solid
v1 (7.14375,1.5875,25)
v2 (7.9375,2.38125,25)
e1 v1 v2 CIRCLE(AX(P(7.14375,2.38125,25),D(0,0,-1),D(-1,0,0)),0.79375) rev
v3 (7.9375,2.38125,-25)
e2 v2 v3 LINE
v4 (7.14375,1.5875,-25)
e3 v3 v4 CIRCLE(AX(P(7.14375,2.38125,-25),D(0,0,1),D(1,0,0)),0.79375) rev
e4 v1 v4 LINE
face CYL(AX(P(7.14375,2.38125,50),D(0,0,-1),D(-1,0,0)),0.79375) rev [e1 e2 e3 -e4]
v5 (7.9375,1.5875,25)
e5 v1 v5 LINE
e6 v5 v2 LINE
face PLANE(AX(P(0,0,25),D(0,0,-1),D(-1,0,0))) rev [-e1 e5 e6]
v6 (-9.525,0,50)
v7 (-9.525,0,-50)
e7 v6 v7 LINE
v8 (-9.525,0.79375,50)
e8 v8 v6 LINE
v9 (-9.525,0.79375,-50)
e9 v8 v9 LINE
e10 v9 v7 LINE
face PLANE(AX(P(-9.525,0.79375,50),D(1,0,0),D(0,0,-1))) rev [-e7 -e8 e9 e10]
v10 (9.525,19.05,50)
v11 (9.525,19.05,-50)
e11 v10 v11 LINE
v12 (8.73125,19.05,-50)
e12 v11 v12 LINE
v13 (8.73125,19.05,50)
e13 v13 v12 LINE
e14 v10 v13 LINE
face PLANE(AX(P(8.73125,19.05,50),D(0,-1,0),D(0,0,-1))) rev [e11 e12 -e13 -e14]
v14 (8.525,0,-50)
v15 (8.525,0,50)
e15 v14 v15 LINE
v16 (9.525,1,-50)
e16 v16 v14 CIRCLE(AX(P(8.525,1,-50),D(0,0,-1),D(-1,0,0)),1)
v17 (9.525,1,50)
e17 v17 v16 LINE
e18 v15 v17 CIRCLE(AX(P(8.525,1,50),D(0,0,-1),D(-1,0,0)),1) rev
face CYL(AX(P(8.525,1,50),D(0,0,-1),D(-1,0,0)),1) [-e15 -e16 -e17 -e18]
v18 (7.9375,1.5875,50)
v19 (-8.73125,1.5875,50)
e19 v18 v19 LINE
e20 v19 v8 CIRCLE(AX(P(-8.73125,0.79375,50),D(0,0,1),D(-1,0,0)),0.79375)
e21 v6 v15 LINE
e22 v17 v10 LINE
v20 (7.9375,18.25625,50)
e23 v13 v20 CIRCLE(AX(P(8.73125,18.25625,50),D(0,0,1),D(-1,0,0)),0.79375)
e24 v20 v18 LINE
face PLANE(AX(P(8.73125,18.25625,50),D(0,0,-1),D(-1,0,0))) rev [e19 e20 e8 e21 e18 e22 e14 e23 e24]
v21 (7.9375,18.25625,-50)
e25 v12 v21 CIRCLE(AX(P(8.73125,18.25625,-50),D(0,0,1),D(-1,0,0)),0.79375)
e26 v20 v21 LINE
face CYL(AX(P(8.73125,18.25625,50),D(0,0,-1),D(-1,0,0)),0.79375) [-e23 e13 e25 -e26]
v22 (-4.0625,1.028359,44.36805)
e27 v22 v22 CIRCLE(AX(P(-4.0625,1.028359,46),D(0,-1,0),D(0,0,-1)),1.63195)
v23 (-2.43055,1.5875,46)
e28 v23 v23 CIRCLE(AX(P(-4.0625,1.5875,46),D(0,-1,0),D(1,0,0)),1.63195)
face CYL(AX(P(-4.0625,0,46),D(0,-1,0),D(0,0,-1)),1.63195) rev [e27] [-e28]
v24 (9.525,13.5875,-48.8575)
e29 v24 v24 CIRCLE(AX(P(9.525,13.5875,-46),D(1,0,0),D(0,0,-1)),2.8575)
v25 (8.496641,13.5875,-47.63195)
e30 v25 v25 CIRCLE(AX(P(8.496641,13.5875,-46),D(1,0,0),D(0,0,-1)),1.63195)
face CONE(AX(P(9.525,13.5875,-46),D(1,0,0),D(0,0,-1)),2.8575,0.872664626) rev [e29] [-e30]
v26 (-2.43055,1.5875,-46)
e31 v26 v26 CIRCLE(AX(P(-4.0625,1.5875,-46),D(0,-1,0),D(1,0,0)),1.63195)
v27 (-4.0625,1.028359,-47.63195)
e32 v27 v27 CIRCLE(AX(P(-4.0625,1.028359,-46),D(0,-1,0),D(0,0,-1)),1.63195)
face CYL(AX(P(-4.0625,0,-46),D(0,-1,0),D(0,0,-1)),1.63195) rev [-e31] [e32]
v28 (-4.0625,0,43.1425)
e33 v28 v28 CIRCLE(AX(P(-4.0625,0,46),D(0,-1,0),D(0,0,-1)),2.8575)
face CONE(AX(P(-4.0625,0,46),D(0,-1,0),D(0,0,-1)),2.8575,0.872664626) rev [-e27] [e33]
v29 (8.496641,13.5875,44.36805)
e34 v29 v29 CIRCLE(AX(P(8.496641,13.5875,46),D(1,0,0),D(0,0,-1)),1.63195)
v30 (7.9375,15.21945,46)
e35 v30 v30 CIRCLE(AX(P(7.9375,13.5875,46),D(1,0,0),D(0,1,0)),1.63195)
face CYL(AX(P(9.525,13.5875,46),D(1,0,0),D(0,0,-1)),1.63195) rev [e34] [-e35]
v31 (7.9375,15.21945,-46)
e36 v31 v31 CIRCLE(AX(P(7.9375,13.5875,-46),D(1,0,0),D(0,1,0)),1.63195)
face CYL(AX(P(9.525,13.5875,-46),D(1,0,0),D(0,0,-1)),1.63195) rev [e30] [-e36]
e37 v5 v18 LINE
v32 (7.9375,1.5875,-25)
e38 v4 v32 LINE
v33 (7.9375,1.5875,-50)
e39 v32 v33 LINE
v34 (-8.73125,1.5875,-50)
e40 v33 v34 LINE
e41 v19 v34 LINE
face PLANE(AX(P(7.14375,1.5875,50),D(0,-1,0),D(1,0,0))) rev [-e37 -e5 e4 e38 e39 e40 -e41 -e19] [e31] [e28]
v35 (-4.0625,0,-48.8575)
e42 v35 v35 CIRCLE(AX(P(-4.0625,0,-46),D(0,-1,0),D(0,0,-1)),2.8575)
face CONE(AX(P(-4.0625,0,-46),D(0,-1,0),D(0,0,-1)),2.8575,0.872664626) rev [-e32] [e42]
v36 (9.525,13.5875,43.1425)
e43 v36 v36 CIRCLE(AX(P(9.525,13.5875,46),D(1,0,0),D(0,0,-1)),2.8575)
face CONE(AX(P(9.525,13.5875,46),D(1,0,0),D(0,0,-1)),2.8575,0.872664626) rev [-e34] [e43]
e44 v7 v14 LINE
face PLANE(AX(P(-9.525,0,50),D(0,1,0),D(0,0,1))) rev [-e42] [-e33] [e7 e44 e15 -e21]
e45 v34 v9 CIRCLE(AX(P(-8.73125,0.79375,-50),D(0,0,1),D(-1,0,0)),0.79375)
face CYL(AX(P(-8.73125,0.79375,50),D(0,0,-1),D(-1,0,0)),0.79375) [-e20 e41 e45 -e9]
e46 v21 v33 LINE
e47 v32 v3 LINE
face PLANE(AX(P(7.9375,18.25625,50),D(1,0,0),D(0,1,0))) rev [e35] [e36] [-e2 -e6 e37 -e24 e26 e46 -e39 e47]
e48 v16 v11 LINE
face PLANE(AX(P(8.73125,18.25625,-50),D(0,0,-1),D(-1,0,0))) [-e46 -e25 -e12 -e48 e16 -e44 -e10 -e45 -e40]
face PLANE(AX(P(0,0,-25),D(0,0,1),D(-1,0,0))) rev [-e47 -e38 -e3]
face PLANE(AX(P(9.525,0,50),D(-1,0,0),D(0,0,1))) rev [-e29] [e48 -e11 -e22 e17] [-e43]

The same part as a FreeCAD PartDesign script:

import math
import FreeCAD as App
import Part
import Sketcher

V = App.Vector
Q = App.Units.Quantity


def edges_at(feature, points):
    """Names of the edges that pass closest to the given points."""
    edges = feature.Shape.Edges
    near = lambda p: min(range(len(edges)), key=lambda i: edges[i].distToShape(Part.Vertex(*p))[0])
    return sorted({f"Edge{near(p) + 1}" for p in points})


def add_polygon(sketch, points):
    """Adds a closed chain of lines whose ends are joined by coincident constraints."""
    first, n = sketch.GeometryCount, len(points)
    for a, b in zip(points, points[1:] + points[:1]):
        sketch.addGeometry(Part.LineSegment(App.Vector(*a, 0), App.Vector(*b, 0)), False)
    for i in range(n):
        sketch.addConstraint(Sketcher.Constraint("Coincident", first + i, 2, first + (i + 1) % n, 1))

doc = App.newDocument("Part")
params = doc.addObject("Spreadsheet::Sheet", "Params")
for row, (alias, value) in enumerate([
    ("sketch1_width", "19.05 mm"),
    ("pad1_length", "100 mm"),
    ("hole_diameter", "3.2639 mm"),
    ("hole_csink_diameter", "5.715 mm"),
    ("hole2_diameter", "3.2639 mm"),
    ("hole2_csink_diameter", "5.715 mm"),
    ("fillet_radius", "1 mm"),
    ("sketch4_width", "5 mm"),
    ("pocket1_length", "25 mm"),
], start=1):
    params.set(f"A{row}", alias)
    params.set(f"B{row}", "=" + value)
    params.setAlias(f"B{row}", alias)

body = doc.addObject("PartDesign::Body", "Body")

# Sketch on XY plane
sketch1 = body.newObject("Sketcher::SketchObject", "Sketch")
sketch1.AttachmentSupport = (doc.getObject("XY_Plane"), [""])
sketch1.MapMode = "FlatFace"
sketch1.addGeometry([
    Part.LineSegment(V(-9.525, 0, 0), V(9.525, 0, 0)),  # 0
    Part.LineSegment(V(9.525, 0, 0), V(9.525, 19.05, 0)),  # 1
    Part.LineSegment(V(9.525, 19.05, 0), V(8.73125, 19.05, 0)),  # 2
    Part.ArcOfCircle(Part.Circle(V(8.73125, 18.25625, 0), V(0, 0, 1), 0.79375), math.radians(90), math.radians(180)),  # 3
    Part.LineSegment(V(7.9375, 18.25625, 0), V(7.9375, 2.38125, 0)),  # 4
    Part.ArcOfCircle(Part.Circle(V(7.14375, 2.38125, 0), V(0, 0, 1), 0.79375), math.radians(-90), math.radians(0)),  # 5
    Part.LineSegment(V(7.14375, 1.5875, 0), V(-8.73125, 1.5875, 0)),  # 6
    Part.ArcOfCircle(Part.Circle(V(-8.73125, 0.79375, 0), V(0, 0, 1), 0.79375), math.radians(90), math.radians(180)),  # 7
    Part.LineSegment(V(-9.525, 0.79375, 0), V(-9.525, 0, 0)),  # 8
], False)
sketch1.addConstraint([
    Sketcher.Constraint("Coincident", 0, 2, 1, 1),
    Sketcher.Constraint("Coincident", 1, 2, 2, 1),
    Sketcher.Constraint("Tangent", 2, 2, 3, 1),
    Sketcher.Constraint("Tangent", 3, 2, 4, 1),
    Sketcher.Constraint("Tangent", 4, 2, 5, 2),
    Sketcher.Constraint("Tangent", 5, 1, 6, 1),
    Sketcher.Constraint("Tangent", 6, 2, 7, 1),
    Sketcher.Constraint("Tangent", 7, 2, 8, 1),
    Sketcher.Constraint("Coincident", 8, 2, 0, 1),
    Sketcher.Constraint("Horizontal", 0),
    Sketcher.Constraint("Vertical", 1),
    Sketcher.Constraint("Horizontal", 2),
    Sketcher.Constraint("Vertical", 4),
    Sketcher.Constraint("Horizontal", 6),
    Sketcher.Constraint("Vertical", 8),
    Sketcher.Constraint("Equal", 3, 5),
    Sketcher.Constraint("Equal", 5, 7),
    Sketcher.Constraint("Symmetric", 0, 2, 8, 2, -1, 1),
    Sketcher.Constraint("Equal", 0, 1),
    Sketcher.Constraint("Equal", 6, 4),
    Sketcher.Constraint("DistanceX", 0, 1, 0, 2, Q("19.05 mm")),
    Sketcher.Constraint("DistanceX", 6, 2, 6, 1, Q("15.875 mm")),
    Sketcher.Constraint("Radius", 3, Q("0.79375 mm")),
])
sketch1.setExpression("Constraints[20]", "Params.sketch1_width")
pad1 = body.newObject("PartDesign::Pad", "Pad")
pad1.Profile = sketch1
pad1.setExpression("Length", "Params.pad1_length")
pad1.Midplane = True

# Sketch on XZ plane
sketch2 = body.newObject("Sketcher::SketchObject", "Sketch001")
sketch2.AttachmentSupport = (doc.getObject("XZ_Plane"), [""])
sketch2.MapMode = "FlatFace"
sketch2.addGeometry([
    Part.Circle(V(-4.0625, 46, 0), V(0, 0, 1), 1.63195),
    Part.Circle(V(-4.0625, -46, 0), V(0, 0, 1), 1.63195),
], False)
sketch2.addConstraint([
    Sketcher.Constraint("Equal", 0, 1),
    Sketcher.Constraint("Symmetric", 0, 3, 1, 3, -1),
    Sketcher.Constraint("DistanceY", -1, 1, 0, 3, Q("46 mm")),
    Sketcher.Constraint("Diameter", 0, Q("3.2639 mm")),
    Sketcher.Constraint("DistanceX", 0, 3, -1, 1, Q("4.0625 mm")),
])
doc.recompute()
hole = body.newObject("PartDesign::Hole", "Hole")
hole.Profile = sketch2
hole.ThreadType = "None"
hole.setExpression("Diameter", "Params.hole_diameter")
hole.DepthType = "ThroughAll"
hole.HoleCutType = "Countersink"
hole.setExpression("HoleCutDiameter", "Params.hole_csink_diameter")
hole.HoleCutCountersinkAngle = 100

# Sketch on YZ plane
sketch3 = body.newObject("Sketcher::SketchObject", "Sketch002")
sketch3.AttachmentSupport = (doc.getObject("YZ_Plane"), [""])
sketch3.MapMode = "FlatFace"
sketch3.AttachmentOffset = App.Placement(V(0, 0, 9.525), App.Rotation())
sketch3.addGeometry([
    Part.Circle(V(13.5875, 46, 0), V(0, 0, 1), 1.63195),
    Part.Circle(V(13.5875, -46, 0), V(0, 0, 1), 1.63195),
], False)
sketch3.addConstraint([
    Sketcher.Constraint("Equal", 0, 1),
    Sketcher.Constraint("Symmetric", 0, 3, 1, 3, -1),
    Sketcher.Constraint("DistanceY", -1, 1, 0, 3, Q("46 mm")),
    Sketcher.Constraint("Diameter", 0, Q("3.2639 mm")),
    Sketcher.Constraint("DistanceX", -1, 1, 0, 3, Q("13.5875 mm")),
])
doc.recompute()
hole2 = body.newObject("PartDesign::Hole", "Hole001")
hole2.Profile = sketch3
hole2.ThreadType = "None"
hole2.setExpression("Diameter", "Params.hole2_diameter")
hole2.DepthType = "ThroughAll"
hole2.HoleCutType = "Countersink"
hole2.setExpression("HoleCutDiameter", "Params.hole2_csink_diameter")
hole2.HoleCutCountersinkAngle = 100
doc.recompute()

fillet = body.newObject("PartDesign::Fillet", "Fillet")
fillet.Base = (hole2, edges_at(hole2, [(9.525, 0, 0)]))
fillet.setExpression("Radius", "Params.fillet_radius")

# Sketch on XY plane
sketch4 = body.newObject("Sketcher::SketchObject", "Sketch003")
sketch4.AttachmentSupport = (doc.getObject("XY_Plane"), [""])
sketch4.MapMode = "FlatFace"
sketch4.AttachmentOffset = App.Placement(V(0, 0, 50), App.Rotation())
add_polygon(sketch4, [(7.9375, 6.5875), (2.9375, 1.5875), (7.9375, 1.5875)])  # lines 0-2
sketch4.addConstraint([
    Sketcher.Constraint("Horizontal", 1),
    Sketcher.Constraint("Vertical", 2),
    Sketcher.Constraint("Equal", 1, 2),
    Sketcher.Constraint("DistanceX", 1, 1, 1, 2, Q("5 mm")),
    Sketcher.Constraint("DistanceX", -1, 1, 0, 2, Q("2.9375 mm")),
    Sketcher.Constraint("DistanceY", -1, 1, 0, 2, Q("1.5875 mm")),
])
sketch4.setExpression("Constraints[6]", "Params.sketch4_width")
pocket1 = body.newObject("PartDesign::Pocket", "Pocket")
pocket1.Profile = sketch4
pocket1.setExpression("Length", "Params.pocket1_length")
doc.recompute()

mirrored = body.newObject("PartDesign::Mirrored", "Mirrored")
mirrored.Originals = [pocket1]
mirrored.MirrorPlane = (doc.getObject("XY_Plane"), [""])
body.Tip = mirrored

doc.recompute()
